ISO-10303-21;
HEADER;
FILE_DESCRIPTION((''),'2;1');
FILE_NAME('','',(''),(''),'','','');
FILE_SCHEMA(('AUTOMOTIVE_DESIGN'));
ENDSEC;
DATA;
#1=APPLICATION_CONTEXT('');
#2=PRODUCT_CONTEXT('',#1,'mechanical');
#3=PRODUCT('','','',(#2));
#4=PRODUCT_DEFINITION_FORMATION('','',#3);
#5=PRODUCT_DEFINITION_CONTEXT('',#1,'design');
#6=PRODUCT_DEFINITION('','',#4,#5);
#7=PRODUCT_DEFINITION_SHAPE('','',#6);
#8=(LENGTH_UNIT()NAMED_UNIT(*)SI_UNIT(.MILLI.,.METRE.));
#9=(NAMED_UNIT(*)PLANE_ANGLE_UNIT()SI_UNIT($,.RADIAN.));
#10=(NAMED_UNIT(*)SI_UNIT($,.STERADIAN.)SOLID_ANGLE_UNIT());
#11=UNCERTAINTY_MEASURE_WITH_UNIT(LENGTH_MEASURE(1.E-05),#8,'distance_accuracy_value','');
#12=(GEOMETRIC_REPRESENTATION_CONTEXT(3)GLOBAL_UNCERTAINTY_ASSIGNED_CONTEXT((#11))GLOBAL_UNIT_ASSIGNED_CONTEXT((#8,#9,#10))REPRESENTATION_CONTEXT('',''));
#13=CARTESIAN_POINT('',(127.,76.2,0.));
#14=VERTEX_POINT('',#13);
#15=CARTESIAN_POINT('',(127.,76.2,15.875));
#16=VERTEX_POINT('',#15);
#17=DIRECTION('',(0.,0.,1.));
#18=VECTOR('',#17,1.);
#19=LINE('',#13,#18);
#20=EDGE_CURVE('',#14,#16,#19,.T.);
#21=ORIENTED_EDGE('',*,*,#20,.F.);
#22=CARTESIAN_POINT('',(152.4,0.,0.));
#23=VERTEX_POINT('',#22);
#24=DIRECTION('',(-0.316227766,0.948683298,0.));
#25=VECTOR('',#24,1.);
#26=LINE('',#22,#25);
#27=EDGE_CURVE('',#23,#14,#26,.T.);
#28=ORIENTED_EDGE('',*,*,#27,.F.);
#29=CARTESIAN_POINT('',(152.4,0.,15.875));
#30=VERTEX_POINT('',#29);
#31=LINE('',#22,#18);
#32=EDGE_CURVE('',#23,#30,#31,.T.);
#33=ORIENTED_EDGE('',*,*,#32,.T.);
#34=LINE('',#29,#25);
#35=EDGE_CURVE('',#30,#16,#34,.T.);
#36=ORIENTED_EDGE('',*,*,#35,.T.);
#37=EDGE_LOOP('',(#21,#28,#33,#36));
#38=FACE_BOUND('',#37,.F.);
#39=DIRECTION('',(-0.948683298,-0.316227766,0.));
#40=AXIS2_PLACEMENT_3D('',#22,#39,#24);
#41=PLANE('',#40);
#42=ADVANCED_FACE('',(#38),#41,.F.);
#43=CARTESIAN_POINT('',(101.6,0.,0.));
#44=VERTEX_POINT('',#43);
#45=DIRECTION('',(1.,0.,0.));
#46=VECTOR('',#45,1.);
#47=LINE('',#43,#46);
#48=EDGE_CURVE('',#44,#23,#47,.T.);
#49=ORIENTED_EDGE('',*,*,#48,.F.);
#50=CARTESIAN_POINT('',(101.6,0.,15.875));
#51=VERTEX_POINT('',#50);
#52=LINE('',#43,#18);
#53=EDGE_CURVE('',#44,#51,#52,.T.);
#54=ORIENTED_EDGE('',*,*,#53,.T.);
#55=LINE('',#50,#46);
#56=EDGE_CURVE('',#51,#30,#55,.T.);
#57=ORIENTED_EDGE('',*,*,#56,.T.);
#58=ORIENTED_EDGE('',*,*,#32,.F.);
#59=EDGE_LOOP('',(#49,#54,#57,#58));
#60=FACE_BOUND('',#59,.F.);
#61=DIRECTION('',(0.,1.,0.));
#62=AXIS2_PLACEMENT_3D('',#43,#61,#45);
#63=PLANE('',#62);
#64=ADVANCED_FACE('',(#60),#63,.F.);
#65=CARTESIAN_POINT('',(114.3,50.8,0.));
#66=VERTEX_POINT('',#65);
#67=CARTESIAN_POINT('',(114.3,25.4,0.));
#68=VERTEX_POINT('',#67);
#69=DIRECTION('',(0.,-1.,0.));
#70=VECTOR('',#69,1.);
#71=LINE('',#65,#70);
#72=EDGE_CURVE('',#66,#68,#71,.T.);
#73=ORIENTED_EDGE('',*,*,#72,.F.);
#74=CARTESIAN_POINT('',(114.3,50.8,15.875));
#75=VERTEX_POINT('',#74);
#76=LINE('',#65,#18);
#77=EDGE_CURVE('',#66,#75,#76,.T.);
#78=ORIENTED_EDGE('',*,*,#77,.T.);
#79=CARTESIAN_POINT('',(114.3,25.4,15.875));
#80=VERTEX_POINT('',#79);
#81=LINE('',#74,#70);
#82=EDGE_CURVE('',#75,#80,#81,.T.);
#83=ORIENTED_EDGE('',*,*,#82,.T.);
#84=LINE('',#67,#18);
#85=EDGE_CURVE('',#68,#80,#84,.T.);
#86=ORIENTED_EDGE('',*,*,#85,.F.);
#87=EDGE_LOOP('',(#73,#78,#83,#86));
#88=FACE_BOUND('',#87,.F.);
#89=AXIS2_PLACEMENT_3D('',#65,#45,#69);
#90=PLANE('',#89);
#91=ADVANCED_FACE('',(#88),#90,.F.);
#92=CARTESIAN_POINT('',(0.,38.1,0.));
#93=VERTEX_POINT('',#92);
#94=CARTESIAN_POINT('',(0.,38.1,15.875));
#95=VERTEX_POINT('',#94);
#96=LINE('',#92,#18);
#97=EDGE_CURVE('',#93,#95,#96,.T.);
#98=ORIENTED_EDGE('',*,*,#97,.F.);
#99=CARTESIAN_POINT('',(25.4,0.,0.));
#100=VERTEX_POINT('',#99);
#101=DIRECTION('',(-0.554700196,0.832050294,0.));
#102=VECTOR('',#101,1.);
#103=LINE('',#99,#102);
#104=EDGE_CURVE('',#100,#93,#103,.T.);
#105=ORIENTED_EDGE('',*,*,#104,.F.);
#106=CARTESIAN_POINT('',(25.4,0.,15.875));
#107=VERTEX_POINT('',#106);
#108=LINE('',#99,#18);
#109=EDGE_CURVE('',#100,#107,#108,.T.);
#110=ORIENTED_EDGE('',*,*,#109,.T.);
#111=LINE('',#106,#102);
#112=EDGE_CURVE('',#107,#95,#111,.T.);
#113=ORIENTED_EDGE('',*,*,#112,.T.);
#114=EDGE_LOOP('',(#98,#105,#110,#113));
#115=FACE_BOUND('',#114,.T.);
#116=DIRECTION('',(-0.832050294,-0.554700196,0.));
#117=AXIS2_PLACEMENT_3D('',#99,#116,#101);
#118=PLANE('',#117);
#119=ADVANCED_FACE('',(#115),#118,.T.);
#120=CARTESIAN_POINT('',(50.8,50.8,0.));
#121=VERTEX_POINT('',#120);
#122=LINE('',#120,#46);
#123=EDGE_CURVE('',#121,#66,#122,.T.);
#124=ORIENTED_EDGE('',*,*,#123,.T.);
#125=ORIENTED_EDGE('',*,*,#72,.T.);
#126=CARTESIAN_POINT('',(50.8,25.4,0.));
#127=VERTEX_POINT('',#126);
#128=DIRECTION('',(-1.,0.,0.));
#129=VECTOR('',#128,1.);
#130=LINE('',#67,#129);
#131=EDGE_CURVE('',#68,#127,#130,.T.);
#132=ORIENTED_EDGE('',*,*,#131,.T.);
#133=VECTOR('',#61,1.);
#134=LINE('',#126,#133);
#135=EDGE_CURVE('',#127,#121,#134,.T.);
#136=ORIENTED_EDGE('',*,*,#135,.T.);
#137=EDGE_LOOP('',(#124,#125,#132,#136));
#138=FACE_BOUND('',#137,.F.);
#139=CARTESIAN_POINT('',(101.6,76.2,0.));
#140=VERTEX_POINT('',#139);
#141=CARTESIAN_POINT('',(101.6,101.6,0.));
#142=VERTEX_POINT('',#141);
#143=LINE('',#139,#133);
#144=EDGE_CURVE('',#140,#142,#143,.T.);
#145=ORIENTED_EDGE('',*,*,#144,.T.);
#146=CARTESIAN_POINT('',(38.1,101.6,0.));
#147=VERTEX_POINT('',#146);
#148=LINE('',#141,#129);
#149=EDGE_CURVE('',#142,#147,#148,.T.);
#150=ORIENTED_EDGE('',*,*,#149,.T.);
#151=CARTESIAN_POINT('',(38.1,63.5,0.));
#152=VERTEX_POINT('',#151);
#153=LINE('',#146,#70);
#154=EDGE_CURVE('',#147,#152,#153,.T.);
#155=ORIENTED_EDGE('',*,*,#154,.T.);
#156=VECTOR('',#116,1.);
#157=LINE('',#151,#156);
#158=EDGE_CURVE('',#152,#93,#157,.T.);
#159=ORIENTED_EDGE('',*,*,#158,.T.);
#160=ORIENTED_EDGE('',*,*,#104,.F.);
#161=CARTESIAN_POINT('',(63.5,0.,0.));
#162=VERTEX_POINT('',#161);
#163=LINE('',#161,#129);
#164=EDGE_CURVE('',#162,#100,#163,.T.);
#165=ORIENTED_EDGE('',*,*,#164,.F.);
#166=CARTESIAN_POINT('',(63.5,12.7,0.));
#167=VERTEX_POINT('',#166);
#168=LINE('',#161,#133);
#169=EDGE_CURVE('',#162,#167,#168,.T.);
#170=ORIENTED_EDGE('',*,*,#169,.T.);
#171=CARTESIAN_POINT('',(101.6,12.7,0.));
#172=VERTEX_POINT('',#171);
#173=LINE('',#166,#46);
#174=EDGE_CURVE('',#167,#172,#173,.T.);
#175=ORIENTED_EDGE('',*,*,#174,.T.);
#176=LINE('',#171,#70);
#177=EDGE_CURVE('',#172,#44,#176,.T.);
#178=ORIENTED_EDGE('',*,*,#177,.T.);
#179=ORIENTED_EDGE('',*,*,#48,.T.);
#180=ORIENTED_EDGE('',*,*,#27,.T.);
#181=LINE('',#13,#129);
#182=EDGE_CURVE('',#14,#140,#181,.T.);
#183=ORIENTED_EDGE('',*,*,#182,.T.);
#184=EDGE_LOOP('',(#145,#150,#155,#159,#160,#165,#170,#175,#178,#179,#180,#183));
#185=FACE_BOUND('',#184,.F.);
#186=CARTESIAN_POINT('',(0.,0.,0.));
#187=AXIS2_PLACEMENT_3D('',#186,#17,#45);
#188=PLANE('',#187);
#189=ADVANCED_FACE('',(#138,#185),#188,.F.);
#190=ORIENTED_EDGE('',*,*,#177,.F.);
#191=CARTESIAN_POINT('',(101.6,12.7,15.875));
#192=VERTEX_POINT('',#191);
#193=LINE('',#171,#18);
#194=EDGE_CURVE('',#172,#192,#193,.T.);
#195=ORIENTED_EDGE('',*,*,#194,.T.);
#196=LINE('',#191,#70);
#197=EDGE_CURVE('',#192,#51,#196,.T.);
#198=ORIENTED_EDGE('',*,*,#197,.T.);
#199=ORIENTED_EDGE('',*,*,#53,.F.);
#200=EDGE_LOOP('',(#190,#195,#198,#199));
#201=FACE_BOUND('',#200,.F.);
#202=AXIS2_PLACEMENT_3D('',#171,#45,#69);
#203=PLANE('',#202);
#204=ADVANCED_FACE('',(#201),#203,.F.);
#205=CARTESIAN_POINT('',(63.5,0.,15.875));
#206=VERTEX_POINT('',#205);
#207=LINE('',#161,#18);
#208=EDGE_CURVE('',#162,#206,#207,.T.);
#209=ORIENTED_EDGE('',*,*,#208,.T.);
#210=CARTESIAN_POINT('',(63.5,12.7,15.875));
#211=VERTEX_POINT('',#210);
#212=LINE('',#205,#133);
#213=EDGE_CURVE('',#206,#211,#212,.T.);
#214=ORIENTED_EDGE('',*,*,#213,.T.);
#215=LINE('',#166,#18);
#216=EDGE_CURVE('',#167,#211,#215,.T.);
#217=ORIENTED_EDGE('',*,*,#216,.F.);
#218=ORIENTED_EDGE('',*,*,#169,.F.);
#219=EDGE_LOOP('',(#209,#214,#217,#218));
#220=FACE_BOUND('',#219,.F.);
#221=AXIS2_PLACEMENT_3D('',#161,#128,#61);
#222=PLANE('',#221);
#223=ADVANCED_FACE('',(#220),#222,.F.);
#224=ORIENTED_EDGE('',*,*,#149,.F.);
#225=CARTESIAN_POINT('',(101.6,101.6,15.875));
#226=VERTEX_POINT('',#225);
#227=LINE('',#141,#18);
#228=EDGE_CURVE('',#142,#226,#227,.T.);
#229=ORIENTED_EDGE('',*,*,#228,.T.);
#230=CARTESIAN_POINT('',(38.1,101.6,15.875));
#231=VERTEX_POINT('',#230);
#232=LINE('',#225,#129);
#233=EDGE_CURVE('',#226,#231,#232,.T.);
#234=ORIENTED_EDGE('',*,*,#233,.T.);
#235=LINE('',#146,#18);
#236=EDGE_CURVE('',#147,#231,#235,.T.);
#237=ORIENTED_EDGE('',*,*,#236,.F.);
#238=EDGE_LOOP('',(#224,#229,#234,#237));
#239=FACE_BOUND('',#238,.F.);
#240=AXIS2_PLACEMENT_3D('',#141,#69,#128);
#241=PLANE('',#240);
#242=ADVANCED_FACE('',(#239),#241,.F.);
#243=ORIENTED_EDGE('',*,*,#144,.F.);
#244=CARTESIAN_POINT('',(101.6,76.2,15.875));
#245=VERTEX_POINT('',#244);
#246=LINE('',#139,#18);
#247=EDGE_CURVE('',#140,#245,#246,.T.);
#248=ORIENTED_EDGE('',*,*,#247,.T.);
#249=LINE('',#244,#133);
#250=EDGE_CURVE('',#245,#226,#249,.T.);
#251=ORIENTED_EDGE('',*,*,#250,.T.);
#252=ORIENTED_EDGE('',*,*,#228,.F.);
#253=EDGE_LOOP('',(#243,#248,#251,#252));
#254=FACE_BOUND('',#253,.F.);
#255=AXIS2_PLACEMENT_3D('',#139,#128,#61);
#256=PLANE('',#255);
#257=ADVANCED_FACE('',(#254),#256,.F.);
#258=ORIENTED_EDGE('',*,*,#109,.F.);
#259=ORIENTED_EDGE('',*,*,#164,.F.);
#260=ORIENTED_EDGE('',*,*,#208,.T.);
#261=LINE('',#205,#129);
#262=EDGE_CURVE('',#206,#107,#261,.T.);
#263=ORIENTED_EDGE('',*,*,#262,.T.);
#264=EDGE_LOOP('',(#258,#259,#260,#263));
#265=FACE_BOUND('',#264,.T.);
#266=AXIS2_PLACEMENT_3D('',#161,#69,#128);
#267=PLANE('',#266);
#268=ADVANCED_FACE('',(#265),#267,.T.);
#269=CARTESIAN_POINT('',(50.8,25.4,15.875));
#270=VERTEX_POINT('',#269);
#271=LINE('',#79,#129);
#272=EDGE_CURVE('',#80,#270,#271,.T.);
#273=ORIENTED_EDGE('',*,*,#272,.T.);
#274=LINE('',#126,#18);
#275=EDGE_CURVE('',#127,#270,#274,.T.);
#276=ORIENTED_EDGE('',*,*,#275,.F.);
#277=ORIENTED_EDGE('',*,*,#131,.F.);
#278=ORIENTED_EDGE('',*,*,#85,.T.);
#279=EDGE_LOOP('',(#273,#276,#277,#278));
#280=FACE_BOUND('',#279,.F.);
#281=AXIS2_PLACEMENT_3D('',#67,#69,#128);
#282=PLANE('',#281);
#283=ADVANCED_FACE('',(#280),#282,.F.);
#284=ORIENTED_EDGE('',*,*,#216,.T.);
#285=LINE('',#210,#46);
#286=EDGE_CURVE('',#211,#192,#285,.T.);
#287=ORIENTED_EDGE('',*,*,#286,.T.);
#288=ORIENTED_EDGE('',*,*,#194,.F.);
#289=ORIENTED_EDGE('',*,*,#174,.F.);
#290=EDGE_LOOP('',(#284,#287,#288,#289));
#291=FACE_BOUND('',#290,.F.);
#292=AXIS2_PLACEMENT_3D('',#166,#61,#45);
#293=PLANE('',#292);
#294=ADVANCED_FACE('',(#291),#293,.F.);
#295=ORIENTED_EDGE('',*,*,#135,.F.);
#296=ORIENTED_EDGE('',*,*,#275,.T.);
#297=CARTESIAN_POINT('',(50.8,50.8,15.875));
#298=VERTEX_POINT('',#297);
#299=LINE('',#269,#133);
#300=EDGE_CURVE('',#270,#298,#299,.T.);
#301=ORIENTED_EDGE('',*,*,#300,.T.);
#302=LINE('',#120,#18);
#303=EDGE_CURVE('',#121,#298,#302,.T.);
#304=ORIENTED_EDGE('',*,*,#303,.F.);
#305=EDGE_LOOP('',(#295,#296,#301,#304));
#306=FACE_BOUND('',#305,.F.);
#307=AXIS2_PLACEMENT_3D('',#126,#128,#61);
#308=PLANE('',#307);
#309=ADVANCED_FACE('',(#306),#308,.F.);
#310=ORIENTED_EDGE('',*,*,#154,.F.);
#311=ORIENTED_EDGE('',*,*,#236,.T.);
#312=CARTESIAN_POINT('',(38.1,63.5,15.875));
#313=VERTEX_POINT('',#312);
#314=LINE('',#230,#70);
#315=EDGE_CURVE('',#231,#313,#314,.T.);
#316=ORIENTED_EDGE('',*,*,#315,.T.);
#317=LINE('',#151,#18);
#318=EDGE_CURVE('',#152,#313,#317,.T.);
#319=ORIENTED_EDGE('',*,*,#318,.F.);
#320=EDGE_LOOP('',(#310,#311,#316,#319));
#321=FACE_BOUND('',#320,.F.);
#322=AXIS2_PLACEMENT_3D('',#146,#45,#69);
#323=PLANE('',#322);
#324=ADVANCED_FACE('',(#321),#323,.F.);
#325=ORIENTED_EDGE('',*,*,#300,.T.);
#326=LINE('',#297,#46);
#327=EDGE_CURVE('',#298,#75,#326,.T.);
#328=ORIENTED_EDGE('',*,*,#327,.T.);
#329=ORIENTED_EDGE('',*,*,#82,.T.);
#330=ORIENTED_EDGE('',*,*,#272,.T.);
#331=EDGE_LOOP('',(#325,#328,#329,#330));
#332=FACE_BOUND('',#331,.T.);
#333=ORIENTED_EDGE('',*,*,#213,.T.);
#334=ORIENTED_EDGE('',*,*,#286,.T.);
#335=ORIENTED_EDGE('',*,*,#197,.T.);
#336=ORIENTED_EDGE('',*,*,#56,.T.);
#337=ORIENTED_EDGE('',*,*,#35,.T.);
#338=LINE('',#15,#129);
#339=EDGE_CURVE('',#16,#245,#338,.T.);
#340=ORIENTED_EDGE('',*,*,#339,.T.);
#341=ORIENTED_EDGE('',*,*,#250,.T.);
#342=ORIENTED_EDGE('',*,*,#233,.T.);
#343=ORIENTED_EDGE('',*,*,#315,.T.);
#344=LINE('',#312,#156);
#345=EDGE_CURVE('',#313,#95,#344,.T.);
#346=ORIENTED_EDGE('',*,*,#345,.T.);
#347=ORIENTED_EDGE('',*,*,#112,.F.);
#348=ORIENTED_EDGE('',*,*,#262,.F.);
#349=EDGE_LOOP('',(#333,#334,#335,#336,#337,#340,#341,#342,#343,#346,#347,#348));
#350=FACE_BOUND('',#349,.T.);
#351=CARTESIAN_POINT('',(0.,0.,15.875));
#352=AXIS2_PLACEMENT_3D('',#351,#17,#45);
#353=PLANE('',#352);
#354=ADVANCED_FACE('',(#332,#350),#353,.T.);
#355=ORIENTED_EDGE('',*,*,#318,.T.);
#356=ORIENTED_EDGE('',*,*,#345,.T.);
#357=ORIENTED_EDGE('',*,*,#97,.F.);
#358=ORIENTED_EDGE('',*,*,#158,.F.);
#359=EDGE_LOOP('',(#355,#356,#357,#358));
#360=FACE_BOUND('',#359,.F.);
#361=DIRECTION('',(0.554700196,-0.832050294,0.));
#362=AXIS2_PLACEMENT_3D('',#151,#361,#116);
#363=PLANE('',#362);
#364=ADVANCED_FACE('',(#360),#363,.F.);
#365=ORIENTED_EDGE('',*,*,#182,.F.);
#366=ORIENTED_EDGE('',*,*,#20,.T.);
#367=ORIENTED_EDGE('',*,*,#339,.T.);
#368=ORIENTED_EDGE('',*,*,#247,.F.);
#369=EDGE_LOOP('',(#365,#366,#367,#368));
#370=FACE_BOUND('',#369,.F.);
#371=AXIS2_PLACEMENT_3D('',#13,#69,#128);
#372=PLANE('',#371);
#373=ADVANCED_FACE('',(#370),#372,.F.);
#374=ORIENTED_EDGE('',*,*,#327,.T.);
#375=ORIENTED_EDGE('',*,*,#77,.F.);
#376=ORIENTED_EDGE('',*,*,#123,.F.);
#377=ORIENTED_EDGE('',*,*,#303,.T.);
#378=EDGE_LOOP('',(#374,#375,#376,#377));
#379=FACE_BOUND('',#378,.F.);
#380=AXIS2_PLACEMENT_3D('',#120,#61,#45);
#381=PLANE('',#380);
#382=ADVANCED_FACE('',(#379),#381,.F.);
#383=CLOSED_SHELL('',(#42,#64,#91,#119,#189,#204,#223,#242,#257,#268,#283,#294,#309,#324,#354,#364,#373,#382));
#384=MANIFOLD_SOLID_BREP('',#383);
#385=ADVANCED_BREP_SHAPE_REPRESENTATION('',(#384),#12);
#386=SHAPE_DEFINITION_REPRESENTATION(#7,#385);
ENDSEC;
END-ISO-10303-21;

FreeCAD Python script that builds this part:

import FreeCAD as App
import Part
import Sketcher

V = App.Vector
Q = App.Units.Quantity


def add_polygon(sketch, points):
    """Adds a closed chain of lines whose ends are joined by coincident constraints."""
    first, n = sketch.GeometryCount, len(points)
    for a, b in zip(points, points[1:] + points[:1]):
        sketch.addGeometry(Part.LineSegment(App.Vector(*a, 0), App.Vector(*b, 0)), False)
    for i in range(n):
        sketch.addConstraint(Sketcher.Constraint("Coincident", first + i, 2, first + (i + 1) % n, 1))

doc = App.newDocument("Part")
body = doc.addObject("PartDesign::Body", "Body")

# Sketch on XY plane
sketch1 = doc.addObject("Sketcher::SketchObject", "Sketch")
body.addObject(sketch1)
sketch1.AttachmentSupport = (doc.XY_Plane, [""])
sketch1.MapMode = "FlatFace"
add_polygon(sketch1, [(0, 38), (25, 0), (64, 0), (64, 13), (102, 13), (102, 0), (152, 0), (127, 76), (102, 76), (102, 102), (38, 102), (38, 64)])  # lines 0-11
add_polygon(sketch1, [(114, 25), (51, 25), (51, 51), (114, 51)])  # lines 12-15
sketch1.addConstraint(Sketcher.Constraint("Horizontal", 1))
sketch1.addConstraint(Sketcher.Constraint("Vertical", 2))
sketch1.addConstraint(Sketcher.Constraint("Horizontal", 3))
sketch1.addConstraint(Sketcher.Constraint("Vertical", 4))
sketch1.addConstraint(Sketcher.Constraint("Horizontal", 5))
sketch1.addConstraint(Sketcher.Constraint("Horizontal", 7))
sketch1.addConstraint(Sketcher.Constraint("Vertical", 8))
sketch1.addConstraint(Sketcher.Constraint("Horizontal", 9))
sketch1.addConstraint(Sketcher.Constraint("Vertical", 10))
sketch1.addConstraint(Sketcher.Constraint("Horizontal", 12))
sketch1.addConstraint(Sketcher.Constraint("Vertical", 13))
sketch1.addConstraint(Sketcher.Constraint("Horizontal", 14))
sketch1.addConstraint(Sketcher.Constraint("Vertical", 15))
sketch1.addConstraint(Sketcher.Constraint("PointOnObject", 0, 2, -1))
sketch1.addConstraint(Sketcher.Constraint("PointOnObject", 4, 2, -1))
sketch1.addConstraint(Sketcher.Constraint("PointOnObject", 11, 2, -2))
sketch1.addConstraint(Sketcher.Constraint("Perpendicular", 0, 11))
sketch1.addConstraint(Sketcher.Constraint("Vertical", 4, 2, 7, 2))
sketch1.addConstraint(Sketcher.Constraint("Equal", 1, 3))
sketch1.addConstraint(Sketcher.Constraint("Equal", 9, 12))
sketch1.addConstraint(Sketcher.Constraint("Equal", 7, 8))
sketch1.addConstraint(Sketcher.Constraint("Equal", 3, 10))
sketch1.addConstraint(Sketcher.Constraint("Equal", 8, 13))
sketch1.addConstraint(Sketcher.Constraint("Equal", 0, 11))
sketch1.addConstraint(Sketcher.Constraint("DistanceX", 5, 1, 5, 2, Q("2 in")))
sketch1.addConstraint(Sketcher.Constraint("DistanceX", 7, 2, 7, 1, Q("1 in")))
sketch1.addConstraint(Sketcher.Constraint("DistanceX", 1, 1, 1, 2, Q("1.5 in")))
sketch1.addConstraint(Sketcher.Constraint("DistanceX", 9, 2, 9, 1, Q("2.5 in")))
sketch1.addConstraint(Sketcher.Constraint("DistanceY", 2, 1, 2, 2, Q("0.5 in")))
sketch1.addConstraint(Sketcher.Constraint("DistanceX", -1, 1, 0, 2, Q("1 in")))
sketch1.addConstraint(Sketcher.Constraint("DistanceX", -1, 1, 12, 2, Q("2 in")))
sketch1.addConstraint(Sketcher.Constraint("DistanceY", -1, 1, 12, 2, Q("1 in")))
pad1 = doc.addObject("PartDesign::Pad", "Pad")
body.addObject(pad1)
pad1.Profile = sketch1
pad1.Length = Q("0.625 in")

doc.recompute()
